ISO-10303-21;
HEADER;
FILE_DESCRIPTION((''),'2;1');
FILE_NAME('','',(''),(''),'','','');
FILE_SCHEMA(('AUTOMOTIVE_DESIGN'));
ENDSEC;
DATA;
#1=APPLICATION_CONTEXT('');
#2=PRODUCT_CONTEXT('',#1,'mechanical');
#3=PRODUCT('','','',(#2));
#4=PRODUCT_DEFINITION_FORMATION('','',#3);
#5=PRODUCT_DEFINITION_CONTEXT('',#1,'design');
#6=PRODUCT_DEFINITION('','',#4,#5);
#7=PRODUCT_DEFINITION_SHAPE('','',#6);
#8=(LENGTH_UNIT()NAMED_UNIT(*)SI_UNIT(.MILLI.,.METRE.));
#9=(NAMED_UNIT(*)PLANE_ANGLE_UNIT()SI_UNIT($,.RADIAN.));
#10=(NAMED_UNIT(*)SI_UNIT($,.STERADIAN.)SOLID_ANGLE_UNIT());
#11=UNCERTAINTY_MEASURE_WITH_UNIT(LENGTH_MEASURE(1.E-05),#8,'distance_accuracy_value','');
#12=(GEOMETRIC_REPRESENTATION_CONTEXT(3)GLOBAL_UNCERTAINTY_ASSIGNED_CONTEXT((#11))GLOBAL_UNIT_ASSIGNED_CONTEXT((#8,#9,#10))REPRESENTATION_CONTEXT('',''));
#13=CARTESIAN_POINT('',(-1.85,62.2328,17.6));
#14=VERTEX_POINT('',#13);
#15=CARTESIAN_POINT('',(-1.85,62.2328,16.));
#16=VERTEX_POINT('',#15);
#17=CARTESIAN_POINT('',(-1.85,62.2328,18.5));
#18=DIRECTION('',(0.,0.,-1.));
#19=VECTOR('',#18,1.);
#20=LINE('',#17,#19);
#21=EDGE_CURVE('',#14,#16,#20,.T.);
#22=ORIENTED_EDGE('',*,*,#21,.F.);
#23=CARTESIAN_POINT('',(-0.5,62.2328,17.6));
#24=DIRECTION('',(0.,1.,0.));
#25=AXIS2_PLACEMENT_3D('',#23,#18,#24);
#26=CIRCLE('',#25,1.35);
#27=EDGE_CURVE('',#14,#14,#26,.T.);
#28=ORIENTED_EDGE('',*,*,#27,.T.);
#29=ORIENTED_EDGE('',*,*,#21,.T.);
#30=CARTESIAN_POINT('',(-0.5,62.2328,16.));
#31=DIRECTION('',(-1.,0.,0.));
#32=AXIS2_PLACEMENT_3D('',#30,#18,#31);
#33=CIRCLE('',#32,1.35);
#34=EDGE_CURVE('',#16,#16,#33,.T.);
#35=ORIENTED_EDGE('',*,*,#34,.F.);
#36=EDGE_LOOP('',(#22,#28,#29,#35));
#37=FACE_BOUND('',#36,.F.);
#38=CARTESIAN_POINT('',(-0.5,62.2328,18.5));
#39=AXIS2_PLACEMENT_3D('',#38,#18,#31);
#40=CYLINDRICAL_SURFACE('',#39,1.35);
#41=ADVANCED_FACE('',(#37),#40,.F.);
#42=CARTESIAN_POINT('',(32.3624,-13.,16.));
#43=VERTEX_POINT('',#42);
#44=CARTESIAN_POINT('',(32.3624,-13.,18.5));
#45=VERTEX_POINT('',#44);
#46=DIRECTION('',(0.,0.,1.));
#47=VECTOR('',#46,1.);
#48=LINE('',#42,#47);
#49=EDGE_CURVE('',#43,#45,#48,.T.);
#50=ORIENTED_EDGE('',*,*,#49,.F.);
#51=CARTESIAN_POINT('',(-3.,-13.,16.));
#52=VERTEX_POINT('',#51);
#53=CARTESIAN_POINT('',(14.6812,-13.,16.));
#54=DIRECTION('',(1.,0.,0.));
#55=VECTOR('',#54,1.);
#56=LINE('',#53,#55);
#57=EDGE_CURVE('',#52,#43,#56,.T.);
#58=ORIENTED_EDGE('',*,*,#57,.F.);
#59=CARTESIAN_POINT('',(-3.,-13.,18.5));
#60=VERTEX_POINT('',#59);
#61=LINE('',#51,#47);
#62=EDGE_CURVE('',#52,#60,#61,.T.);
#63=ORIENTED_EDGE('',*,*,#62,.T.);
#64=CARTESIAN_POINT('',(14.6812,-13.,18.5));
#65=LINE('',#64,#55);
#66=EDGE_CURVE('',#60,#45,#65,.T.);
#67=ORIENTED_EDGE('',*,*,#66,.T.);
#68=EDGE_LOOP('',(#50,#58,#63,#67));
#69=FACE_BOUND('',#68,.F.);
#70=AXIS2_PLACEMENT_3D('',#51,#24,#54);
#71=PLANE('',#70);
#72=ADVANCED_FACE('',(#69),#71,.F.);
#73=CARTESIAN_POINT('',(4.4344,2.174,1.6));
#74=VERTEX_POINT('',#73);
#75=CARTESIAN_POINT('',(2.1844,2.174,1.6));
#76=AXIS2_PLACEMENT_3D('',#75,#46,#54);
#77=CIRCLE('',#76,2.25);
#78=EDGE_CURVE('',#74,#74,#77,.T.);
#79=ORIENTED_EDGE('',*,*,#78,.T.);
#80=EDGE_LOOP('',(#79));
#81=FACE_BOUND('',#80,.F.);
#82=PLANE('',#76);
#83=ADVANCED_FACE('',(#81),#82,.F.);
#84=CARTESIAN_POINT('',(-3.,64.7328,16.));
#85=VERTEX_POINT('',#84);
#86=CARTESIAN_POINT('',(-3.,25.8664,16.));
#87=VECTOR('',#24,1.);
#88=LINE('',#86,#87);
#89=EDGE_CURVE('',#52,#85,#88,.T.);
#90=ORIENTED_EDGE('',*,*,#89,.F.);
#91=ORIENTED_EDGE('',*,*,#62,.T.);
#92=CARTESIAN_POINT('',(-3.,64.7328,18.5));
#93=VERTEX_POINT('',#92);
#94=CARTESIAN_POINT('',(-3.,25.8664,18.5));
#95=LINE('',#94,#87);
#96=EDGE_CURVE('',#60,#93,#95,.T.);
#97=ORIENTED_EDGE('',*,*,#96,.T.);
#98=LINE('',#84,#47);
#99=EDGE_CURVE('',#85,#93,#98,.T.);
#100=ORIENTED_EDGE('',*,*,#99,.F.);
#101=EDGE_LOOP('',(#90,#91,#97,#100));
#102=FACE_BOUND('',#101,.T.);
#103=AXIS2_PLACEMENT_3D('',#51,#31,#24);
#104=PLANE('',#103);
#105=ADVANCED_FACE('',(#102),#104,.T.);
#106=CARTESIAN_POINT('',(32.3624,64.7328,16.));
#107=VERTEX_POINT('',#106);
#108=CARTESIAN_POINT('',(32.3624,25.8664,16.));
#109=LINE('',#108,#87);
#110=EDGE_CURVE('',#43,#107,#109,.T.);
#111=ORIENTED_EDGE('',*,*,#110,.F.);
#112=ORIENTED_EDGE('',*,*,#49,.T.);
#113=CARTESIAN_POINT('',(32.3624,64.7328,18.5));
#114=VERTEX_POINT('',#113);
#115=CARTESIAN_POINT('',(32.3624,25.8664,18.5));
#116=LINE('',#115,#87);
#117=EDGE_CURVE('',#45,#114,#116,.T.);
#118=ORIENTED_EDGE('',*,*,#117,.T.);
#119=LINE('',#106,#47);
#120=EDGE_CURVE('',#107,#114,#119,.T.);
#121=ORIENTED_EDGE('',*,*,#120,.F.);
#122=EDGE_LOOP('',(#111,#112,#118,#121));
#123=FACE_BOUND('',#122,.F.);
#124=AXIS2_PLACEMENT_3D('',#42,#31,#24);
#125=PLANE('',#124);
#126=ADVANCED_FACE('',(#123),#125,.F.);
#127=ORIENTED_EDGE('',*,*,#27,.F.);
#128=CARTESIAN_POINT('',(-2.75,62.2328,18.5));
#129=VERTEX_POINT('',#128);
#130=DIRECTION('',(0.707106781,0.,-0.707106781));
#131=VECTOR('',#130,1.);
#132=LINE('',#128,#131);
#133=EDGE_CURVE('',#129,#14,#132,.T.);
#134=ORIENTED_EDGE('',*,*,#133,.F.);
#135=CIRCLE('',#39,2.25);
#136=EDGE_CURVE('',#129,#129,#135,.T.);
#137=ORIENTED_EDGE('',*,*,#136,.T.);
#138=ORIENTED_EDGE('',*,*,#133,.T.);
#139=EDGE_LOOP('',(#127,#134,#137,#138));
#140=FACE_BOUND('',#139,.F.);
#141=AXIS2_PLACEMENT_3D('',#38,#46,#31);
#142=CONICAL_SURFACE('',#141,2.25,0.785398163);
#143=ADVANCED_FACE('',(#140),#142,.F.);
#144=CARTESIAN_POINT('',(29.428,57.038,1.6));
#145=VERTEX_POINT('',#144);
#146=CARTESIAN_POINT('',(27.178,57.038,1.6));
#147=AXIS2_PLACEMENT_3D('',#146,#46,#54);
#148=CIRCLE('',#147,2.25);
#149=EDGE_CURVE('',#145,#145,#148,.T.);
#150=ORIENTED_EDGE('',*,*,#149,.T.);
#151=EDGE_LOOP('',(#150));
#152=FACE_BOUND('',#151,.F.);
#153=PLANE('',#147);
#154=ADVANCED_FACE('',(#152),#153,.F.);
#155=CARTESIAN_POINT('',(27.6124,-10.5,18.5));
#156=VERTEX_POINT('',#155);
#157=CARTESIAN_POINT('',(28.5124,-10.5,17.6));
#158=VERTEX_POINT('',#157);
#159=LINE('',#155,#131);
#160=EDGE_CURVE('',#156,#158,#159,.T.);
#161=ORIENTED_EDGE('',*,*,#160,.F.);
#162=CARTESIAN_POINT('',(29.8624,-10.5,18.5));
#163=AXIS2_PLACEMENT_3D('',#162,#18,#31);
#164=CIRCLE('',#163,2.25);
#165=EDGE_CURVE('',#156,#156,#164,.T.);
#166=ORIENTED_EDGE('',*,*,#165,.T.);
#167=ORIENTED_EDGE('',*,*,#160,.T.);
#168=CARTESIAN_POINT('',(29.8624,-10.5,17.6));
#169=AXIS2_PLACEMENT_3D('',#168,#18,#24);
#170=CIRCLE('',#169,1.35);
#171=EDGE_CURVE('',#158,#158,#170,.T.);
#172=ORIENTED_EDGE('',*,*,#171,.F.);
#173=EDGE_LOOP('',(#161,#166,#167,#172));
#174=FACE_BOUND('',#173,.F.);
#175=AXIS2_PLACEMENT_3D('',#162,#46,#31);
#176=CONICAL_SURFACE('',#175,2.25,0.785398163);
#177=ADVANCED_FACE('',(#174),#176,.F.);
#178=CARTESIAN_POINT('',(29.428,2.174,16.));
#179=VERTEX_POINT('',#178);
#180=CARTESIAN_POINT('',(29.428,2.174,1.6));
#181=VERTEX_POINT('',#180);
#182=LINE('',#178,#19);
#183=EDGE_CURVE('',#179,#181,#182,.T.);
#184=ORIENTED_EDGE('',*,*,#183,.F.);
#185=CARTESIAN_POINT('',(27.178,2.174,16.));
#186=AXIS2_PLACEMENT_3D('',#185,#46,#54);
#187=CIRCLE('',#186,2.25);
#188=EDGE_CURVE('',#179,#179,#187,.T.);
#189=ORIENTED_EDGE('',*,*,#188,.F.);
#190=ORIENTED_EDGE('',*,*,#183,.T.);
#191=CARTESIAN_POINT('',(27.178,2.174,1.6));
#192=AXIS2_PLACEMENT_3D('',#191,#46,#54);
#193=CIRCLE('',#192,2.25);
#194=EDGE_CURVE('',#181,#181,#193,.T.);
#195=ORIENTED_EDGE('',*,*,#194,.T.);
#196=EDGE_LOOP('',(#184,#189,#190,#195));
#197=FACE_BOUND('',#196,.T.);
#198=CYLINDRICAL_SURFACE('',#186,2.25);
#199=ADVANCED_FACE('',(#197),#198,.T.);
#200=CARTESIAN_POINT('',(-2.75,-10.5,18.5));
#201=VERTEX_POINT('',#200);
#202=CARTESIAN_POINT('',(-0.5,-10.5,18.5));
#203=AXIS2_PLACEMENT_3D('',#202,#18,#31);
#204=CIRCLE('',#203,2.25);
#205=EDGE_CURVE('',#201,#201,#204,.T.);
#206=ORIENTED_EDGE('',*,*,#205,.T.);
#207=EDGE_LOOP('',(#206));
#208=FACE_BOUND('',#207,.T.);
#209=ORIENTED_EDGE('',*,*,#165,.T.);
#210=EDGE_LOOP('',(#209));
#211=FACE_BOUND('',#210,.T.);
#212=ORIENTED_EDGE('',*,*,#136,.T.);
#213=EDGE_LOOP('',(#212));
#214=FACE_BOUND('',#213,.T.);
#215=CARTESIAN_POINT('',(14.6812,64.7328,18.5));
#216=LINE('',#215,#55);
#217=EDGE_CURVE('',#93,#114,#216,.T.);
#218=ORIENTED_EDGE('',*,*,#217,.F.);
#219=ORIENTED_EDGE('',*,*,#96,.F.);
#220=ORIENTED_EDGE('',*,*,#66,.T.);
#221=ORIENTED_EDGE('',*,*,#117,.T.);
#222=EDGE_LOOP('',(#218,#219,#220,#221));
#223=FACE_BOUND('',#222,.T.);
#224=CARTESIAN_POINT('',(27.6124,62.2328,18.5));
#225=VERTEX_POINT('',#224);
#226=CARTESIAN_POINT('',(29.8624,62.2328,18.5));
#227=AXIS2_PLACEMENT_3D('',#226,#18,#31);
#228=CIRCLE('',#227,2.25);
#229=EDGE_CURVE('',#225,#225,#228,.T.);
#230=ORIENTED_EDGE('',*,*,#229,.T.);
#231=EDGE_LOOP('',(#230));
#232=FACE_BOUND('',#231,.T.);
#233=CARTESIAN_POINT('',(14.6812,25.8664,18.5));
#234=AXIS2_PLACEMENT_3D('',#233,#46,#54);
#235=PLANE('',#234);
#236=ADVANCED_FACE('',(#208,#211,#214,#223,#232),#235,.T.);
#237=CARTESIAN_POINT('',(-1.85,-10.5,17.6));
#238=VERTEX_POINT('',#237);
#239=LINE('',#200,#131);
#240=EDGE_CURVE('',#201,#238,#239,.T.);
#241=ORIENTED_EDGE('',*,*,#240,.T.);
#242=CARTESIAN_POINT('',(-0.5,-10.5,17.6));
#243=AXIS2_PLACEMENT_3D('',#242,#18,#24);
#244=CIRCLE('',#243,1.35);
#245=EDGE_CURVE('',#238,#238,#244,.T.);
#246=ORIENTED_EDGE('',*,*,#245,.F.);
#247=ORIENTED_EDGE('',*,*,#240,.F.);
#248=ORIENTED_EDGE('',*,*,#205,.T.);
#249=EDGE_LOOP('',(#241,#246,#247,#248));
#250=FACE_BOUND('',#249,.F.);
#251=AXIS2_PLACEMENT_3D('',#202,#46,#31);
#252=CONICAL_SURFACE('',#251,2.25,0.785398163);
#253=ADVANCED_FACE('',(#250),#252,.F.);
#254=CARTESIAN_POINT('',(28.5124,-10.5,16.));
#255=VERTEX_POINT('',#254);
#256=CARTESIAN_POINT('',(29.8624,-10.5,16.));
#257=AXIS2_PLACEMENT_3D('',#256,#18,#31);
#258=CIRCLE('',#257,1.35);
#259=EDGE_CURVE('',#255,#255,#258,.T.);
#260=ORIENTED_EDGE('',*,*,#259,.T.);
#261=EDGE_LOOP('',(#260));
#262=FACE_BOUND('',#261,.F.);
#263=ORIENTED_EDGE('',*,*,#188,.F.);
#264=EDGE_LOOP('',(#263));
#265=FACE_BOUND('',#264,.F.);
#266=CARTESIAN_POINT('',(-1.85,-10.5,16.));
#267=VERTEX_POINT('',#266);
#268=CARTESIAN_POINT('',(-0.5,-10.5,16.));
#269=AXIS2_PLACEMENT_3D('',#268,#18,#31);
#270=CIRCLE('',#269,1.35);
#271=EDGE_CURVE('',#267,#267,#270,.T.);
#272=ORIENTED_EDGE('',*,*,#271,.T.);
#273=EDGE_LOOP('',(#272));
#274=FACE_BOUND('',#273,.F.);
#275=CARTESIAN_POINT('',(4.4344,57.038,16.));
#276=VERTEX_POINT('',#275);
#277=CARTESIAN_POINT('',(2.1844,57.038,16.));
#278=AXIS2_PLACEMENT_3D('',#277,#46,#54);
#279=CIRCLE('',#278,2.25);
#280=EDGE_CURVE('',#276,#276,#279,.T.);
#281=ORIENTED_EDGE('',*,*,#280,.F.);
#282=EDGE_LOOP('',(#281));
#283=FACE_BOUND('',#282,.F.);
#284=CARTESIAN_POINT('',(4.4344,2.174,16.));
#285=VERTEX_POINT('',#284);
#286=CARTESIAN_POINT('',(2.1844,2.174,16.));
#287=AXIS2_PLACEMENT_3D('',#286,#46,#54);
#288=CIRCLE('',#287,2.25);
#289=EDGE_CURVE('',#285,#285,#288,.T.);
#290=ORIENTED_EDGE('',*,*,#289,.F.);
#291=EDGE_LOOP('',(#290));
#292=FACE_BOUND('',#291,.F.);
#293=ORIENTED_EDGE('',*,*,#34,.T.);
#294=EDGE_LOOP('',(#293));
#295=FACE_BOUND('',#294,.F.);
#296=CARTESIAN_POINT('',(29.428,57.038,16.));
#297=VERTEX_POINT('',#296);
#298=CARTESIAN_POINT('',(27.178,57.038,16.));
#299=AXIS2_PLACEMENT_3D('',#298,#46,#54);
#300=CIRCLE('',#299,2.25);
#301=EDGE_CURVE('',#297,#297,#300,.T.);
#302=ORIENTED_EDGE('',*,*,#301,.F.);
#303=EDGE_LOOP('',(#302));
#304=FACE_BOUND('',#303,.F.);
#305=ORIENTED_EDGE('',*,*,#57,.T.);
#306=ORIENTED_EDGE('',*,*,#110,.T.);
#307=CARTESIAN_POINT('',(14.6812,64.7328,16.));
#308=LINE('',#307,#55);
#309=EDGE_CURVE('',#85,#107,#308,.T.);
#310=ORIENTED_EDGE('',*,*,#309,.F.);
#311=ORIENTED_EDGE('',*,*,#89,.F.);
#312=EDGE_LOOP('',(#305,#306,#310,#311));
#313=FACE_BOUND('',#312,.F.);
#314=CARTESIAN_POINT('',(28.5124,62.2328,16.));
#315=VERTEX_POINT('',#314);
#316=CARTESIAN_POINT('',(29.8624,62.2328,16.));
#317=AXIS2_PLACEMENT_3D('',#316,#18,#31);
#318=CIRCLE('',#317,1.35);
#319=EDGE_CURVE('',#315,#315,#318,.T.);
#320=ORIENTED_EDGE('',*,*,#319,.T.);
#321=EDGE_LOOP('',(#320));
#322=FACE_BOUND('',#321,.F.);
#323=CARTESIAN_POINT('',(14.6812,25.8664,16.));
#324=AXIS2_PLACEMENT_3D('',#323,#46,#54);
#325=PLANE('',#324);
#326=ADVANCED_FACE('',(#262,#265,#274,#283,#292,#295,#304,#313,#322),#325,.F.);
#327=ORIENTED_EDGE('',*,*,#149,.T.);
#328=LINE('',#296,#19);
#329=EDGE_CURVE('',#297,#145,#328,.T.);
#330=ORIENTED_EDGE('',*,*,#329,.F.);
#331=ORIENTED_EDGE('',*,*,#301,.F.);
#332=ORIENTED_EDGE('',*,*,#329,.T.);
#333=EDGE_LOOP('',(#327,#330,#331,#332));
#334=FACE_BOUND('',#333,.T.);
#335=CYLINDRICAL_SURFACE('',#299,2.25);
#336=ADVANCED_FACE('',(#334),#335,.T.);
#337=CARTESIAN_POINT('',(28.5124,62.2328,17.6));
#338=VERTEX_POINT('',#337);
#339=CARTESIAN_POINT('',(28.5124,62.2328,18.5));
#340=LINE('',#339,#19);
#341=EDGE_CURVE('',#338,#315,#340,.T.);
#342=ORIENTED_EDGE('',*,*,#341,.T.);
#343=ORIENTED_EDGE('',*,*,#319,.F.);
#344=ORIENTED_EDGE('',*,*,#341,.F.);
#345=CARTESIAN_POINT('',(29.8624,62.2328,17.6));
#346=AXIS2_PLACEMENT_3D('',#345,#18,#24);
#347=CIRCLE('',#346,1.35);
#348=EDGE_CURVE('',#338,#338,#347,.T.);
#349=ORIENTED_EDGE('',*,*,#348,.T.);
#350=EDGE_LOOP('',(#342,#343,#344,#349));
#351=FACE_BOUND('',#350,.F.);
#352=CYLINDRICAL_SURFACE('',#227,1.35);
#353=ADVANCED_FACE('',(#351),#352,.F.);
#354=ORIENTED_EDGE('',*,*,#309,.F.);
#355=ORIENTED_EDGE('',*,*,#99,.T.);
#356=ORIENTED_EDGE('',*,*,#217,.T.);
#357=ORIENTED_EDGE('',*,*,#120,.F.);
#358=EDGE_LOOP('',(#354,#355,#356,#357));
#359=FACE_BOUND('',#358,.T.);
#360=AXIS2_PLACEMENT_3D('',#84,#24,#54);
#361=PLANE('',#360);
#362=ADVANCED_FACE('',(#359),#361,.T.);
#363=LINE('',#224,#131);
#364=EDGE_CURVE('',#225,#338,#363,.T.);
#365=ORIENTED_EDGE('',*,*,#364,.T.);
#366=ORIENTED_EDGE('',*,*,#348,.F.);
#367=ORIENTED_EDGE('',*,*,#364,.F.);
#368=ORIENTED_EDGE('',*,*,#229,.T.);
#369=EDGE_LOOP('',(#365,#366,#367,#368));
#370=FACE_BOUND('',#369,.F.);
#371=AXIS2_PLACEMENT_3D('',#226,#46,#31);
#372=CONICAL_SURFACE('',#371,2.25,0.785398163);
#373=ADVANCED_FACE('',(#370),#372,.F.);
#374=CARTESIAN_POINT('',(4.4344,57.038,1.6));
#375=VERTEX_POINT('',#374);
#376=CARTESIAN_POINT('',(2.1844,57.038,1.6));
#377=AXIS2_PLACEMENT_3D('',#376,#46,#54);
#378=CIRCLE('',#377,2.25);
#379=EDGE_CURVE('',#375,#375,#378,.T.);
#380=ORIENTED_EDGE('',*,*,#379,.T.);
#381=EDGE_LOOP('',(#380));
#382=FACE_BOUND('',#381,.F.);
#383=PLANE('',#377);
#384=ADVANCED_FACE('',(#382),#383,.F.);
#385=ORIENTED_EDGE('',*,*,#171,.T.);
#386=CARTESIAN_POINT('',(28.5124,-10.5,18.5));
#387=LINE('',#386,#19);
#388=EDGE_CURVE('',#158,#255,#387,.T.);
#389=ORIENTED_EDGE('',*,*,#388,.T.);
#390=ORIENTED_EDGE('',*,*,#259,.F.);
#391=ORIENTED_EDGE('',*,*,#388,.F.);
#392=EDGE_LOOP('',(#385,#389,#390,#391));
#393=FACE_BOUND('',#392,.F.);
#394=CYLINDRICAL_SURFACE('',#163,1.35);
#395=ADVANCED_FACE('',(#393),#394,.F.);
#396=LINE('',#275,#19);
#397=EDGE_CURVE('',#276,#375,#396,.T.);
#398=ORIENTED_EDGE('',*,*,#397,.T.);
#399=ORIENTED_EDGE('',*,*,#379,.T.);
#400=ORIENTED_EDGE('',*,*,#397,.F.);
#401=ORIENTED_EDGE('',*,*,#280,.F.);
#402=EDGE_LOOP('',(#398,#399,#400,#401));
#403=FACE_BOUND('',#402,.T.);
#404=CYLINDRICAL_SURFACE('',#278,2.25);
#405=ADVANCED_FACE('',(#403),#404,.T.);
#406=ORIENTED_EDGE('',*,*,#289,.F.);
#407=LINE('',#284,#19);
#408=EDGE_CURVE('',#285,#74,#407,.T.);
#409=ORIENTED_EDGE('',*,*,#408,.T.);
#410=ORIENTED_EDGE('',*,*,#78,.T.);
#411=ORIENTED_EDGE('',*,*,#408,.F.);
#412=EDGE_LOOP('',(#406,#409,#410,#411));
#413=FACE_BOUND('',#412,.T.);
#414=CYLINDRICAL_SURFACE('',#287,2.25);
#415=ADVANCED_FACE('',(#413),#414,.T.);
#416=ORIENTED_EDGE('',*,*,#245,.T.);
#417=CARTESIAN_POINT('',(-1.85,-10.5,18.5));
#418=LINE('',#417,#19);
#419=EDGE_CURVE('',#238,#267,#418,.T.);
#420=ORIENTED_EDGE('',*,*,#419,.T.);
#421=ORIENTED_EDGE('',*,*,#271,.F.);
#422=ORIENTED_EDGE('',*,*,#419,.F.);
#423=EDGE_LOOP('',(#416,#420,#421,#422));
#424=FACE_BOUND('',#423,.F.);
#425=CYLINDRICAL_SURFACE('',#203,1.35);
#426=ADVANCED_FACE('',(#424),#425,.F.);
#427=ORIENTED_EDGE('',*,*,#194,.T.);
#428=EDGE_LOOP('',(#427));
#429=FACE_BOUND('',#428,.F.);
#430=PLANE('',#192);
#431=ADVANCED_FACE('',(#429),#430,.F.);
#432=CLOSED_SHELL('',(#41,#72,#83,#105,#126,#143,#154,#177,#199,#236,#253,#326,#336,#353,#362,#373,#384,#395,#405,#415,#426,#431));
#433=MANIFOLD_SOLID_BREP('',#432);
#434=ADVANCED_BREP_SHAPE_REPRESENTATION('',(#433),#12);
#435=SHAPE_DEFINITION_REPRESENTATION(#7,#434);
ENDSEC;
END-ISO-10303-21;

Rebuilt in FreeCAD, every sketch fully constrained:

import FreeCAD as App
import Part
import Sketcher
Q = App.Units.Quantity

doc = App.newDocument("Part")
body = doc.addObject("PartDesign::Body", "Body")

sketch1 = body.newObject("Sketcher::SketchObject", "Sketch")
sketch1.AttachmentSupport = (doc.getObject("XY_Plane"), [""])
sketch1.MapMode = "FlatFace"
sketch1.AttachmentOffset = App.Placement(App.Vector(0, 0, 16), App.Rotation())
sketch1.addGeometry([
    Part.LineSegment(App.Vector(-3, 64.7328, 0), App.Vector(-3, -13, 0)),
    Part.LineSegment(App.Vector(-3, -13, 0), App.Vector(32.3624, -13, 0)),
    Part.LineSegment(App.Vector(32.3624, -13, 0), App.Vector(32.3624, 64.7328, 0)),
    Part.LineSegment(App.Vector(32.3624, 64.7328, 0), App.Vector(-3, 64.7328, 0)),
], False)
sketch1.addConstraint([
    Sketcher.Constraint("Coincident", 0, 2, 1, 1),
    Sketcher.Constraint("Coincident", 1, 2, 2, 1),
    Sketcher.Constraint("Coincident", 2, 2, 3, 1),
    Sketcher.Constraint("Coincident", 3, 2, 0, 1),
    Sketcher.Constraint("Vertical", 0),
    Sketcher.Constraint("Horizontal", 1),
    Sketcher.Constraint("Vertical", 2),
    Sketcher.Constraint("Horizontal", 3),
    Sketcher.Constraint("DistanceX", 0, 2, -1, 1, Q("3 mm")),
    Sketcher.Constraint("DistanceY", 0, 2, -1, 1, Q("13 mm")),
    Sketcher.Constraint("DistanceX", 1, 1, 1, 2, Q("35.3624 mm")),
    Sketcher.Constraint("DistanceY", 0, 2, 0, 1, Q("77.7328 mm")),
])
pad1 = body.newObject("PartDesign::Pad", "Pad")
pad1.Profile = sketch1
pad1.Length = 2.5

sketch2 = body.newObject("Sketcher::SketchObject", "Sketch001")
sketch2.AttachmentSupport = (doc.getObject("XY_Plane"), [""])
sketch2.MapMode = "FlatFace"
sketch2.AttachmentOffset = App.Placement(App.Vector(0, 0, 16), App.Rotation())
sketch2.addGeometry([
    Part.Circle(App.Vector(2.1844, 57.038, 0), App.Vector(0, 0, 1), 2.25),
    Part.Circle(App.Vector(27.178, 57.038, 0), App.Vector(0, 0, 1), 2.25),
    Part.Circle(App.Vector(27.178, 2.174, 0), App.Vector(0, 0, 1), 2.25),
    Part.Circle(App.Vector(2.1844, 2.174, 0), App.Vector(0, 0, 1), 2.25),
], False)
sketch2.addConstraint([
    Sketcher.Constraint("Equal", 0, 1),
    Sketcher.Constraint("Equal", 1, 2),
    Sketcher.Constraint("Equal", 2, 3),
    Sketcher.Constraint("Horizontal", 0, 3, 1, 3),
    Sketcher.Constraint("Horizontal", 2, 3, 3, 3),
    Sketcher.Constraint("Vertical", 1, 3, 2, 3),
    Sketcher.Constraint("Vertical", 0, 3, 3, 3),
    Sketcher.Constraint("Diameter", 0, Q("4.5 mm")),
    Sketcher.Constraint("DistanceY", -1, 1, 0, 3, Q("57.038 mm")),
    Sketcher.Constraint("DistanceX", -1, 1, 1, 3, Q("27.178 mm")),
    Sketcher.Constraint("DistanceY", -1, 1, 2, 3, Q("2.174 mm")),
    Sketcher.Constraint("DistanceX", -1, 1, 0, 3, Q("2.1844 mm")),
])
pad2 = body.newObject("PartDesign::Pad", "Pad001")
pad2.Profile = sketch2
pad2.Length = 14.4
pad2.Reversed = True

sketch3 = body.newObject("Sketcher::SketchObject", "Sketch002")
sketch3.AttachmentSupport = (doc.getObject("XY_Plane"), [""])
sketch3.MapMode = "FlatFace"
sketch3.AttachmentOffset = App.Placement(App.Vector(0, 0, 18.5), App.Rotation())
sketch3.addGeometry([
    Part.Circle(App.Vector(-0.5, 62.2328, 0), App.Vector(0, 0, 1), 1.35),
    Part.Circle(App.Vector(29.8624, 62.2328, 0), App.Vector(0, 0, 1), 1.35),
    Part.Circle(App.Vector(29.8624, -10.5, 0), App.Vector(0, 0, 1), 1.35),
    Part.Circle(App.Vector(-0.5, -10.5, 0), App.Vector(0, 0, 1), 1.35),
], False)
sketch3.addConstraint([
    Sketcher.Constraint("Equal", 0, 1),
    Sketcher.Constraint("Equal", 1, 2),
    Sketcher.Constraint("Equal", 2, 3),
    Sketcher.Constraint("Horizontal", 0, 3, 1, 3),
    Sketcher.Constraint("Horizontal", 2, 3, 3, 3),
    Sketcher.Constraint("Vertical", 1, 3, 2, 3),
    Sketcher.Constraint("Vertical", 0, 3, 3, 3),
    Sketcher.Constraint("Diameter", 0, Q("2.7 mm")),
    Sketcher.Constraint("DistanceX", 0, 3, -1, 1, Q("0.5 mm")),
    Sketcher.Constraint("DistanceY", 2, 3, -1, 1, Q("10.5 mm")),
    Sketcher.Constraint("DistanceY", -1, 1, 0, 3, Q("62.2328 mm")),
    Sketcher.Constraint("DistanceX", -1, 1, 1, 3, Q("29.8624 mm")),
])
doc.recompute()
hole = body.newObject("PartDesign::Hole", "Hole")
hole.Profile = sketch3
hole.ThreadType = "None"
hole.Diameter = 2.7
hole.DepthType = "ThroughAll"
hole.HoleCutType = "Countersink"
hole.HoleCutDiameter = 4.5
hole.HoleCutCountersinkAngle = 90

doc.recompute()
